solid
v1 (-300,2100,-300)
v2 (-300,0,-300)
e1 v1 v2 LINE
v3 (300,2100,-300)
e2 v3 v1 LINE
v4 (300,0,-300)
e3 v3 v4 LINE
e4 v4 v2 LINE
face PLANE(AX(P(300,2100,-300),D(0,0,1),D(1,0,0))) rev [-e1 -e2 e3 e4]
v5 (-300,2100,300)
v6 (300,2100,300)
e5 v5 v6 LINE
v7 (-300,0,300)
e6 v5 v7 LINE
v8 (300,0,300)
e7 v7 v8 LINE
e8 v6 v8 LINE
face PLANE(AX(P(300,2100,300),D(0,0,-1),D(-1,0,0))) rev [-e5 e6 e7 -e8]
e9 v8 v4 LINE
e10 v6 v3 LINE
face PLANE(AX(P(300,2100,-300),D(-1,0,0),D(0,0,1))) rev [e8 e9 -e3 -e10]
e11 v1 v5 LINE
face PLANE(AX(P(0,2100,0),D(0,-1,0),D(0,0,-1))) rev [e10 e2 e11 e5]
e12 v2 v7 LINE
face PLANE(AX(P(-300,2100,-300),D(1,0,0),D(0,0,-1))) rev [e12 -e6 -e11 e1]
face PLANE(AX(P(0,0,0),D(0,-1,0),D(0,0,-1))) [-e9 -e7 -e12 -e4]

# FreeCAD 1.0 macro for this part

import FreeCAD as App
import Part
import Sketcher


def add_polygon(sketch, points):
    """Adds a closed chain of lines whose ends are joined by coincident constraints."""
    first, n = sketch.GeometryCount, len(points)
    for a, b in zip(points, points[1:] + points[:1]):
        sketch.addGeometry(Part.LineSegment(App.Vector(*a, 0), App.Vector(*b, 0)), False)
    for i in range(n):
        sketch.addConstraint(Sketcher.Constraint("Coincident", first + i, 2, first + (i + 1) % n, 1))

doc = App.newDocument("Part")
params = doc.addObject("Spreadsheet::Sheet", "Params")
for row, (alias, value) in enumerate([
    ("sketch1_width", "600 mm"),
    ("pad1_length", "2100 mm"),
], start=1):
    params.set(f"A{row}", alias)
    params.set(f"B{row}", "=" + value)
    params.setAlias(f"B{row}", alias)

body = doc.addObject("PartDesign::Body", "Body")

# Sketch on XZ plane
sketch1 = body.newObject("Sketcher::SketchObject", "Sketch")
sketch1.AttachmentSupport = (doc.getObject("XZ_Plane"), [""])
sketch1.MapMode = "FlatFace"
add_polygon(sketch1, [(-300, -300), (-300, 300), (300, 300), (300, -300)])  # lines 0-3
sketch1.addConstraint([
    Sketcher.Constraint("Vertical", 0),
    Sketcher.Constraint("Horizontal", 1),
    Sketcher.Constraint("Vertical", 2),
    Sketcher.Constraint("Horizontal", 3),
    Sketcher.Constraint("Symmetric", 0, 2, 2, 2, -1, 1),
    Sketcher.Constraint("Equal", 3, 0),
    Sketcher.Constraint("DistanceX", 1, 1, 1, 2, 600.0),
])
sketch1.setExpression("Constraints[10]", "Params.sketch1_width")
pad1 = body.newObject("PartDesign::Pad", "Pad")
pad1.Profile = sketch1
pad1.setExpression("Length", "Params.pad1_length")
pad1.Reversed = True

doc.recompute()
